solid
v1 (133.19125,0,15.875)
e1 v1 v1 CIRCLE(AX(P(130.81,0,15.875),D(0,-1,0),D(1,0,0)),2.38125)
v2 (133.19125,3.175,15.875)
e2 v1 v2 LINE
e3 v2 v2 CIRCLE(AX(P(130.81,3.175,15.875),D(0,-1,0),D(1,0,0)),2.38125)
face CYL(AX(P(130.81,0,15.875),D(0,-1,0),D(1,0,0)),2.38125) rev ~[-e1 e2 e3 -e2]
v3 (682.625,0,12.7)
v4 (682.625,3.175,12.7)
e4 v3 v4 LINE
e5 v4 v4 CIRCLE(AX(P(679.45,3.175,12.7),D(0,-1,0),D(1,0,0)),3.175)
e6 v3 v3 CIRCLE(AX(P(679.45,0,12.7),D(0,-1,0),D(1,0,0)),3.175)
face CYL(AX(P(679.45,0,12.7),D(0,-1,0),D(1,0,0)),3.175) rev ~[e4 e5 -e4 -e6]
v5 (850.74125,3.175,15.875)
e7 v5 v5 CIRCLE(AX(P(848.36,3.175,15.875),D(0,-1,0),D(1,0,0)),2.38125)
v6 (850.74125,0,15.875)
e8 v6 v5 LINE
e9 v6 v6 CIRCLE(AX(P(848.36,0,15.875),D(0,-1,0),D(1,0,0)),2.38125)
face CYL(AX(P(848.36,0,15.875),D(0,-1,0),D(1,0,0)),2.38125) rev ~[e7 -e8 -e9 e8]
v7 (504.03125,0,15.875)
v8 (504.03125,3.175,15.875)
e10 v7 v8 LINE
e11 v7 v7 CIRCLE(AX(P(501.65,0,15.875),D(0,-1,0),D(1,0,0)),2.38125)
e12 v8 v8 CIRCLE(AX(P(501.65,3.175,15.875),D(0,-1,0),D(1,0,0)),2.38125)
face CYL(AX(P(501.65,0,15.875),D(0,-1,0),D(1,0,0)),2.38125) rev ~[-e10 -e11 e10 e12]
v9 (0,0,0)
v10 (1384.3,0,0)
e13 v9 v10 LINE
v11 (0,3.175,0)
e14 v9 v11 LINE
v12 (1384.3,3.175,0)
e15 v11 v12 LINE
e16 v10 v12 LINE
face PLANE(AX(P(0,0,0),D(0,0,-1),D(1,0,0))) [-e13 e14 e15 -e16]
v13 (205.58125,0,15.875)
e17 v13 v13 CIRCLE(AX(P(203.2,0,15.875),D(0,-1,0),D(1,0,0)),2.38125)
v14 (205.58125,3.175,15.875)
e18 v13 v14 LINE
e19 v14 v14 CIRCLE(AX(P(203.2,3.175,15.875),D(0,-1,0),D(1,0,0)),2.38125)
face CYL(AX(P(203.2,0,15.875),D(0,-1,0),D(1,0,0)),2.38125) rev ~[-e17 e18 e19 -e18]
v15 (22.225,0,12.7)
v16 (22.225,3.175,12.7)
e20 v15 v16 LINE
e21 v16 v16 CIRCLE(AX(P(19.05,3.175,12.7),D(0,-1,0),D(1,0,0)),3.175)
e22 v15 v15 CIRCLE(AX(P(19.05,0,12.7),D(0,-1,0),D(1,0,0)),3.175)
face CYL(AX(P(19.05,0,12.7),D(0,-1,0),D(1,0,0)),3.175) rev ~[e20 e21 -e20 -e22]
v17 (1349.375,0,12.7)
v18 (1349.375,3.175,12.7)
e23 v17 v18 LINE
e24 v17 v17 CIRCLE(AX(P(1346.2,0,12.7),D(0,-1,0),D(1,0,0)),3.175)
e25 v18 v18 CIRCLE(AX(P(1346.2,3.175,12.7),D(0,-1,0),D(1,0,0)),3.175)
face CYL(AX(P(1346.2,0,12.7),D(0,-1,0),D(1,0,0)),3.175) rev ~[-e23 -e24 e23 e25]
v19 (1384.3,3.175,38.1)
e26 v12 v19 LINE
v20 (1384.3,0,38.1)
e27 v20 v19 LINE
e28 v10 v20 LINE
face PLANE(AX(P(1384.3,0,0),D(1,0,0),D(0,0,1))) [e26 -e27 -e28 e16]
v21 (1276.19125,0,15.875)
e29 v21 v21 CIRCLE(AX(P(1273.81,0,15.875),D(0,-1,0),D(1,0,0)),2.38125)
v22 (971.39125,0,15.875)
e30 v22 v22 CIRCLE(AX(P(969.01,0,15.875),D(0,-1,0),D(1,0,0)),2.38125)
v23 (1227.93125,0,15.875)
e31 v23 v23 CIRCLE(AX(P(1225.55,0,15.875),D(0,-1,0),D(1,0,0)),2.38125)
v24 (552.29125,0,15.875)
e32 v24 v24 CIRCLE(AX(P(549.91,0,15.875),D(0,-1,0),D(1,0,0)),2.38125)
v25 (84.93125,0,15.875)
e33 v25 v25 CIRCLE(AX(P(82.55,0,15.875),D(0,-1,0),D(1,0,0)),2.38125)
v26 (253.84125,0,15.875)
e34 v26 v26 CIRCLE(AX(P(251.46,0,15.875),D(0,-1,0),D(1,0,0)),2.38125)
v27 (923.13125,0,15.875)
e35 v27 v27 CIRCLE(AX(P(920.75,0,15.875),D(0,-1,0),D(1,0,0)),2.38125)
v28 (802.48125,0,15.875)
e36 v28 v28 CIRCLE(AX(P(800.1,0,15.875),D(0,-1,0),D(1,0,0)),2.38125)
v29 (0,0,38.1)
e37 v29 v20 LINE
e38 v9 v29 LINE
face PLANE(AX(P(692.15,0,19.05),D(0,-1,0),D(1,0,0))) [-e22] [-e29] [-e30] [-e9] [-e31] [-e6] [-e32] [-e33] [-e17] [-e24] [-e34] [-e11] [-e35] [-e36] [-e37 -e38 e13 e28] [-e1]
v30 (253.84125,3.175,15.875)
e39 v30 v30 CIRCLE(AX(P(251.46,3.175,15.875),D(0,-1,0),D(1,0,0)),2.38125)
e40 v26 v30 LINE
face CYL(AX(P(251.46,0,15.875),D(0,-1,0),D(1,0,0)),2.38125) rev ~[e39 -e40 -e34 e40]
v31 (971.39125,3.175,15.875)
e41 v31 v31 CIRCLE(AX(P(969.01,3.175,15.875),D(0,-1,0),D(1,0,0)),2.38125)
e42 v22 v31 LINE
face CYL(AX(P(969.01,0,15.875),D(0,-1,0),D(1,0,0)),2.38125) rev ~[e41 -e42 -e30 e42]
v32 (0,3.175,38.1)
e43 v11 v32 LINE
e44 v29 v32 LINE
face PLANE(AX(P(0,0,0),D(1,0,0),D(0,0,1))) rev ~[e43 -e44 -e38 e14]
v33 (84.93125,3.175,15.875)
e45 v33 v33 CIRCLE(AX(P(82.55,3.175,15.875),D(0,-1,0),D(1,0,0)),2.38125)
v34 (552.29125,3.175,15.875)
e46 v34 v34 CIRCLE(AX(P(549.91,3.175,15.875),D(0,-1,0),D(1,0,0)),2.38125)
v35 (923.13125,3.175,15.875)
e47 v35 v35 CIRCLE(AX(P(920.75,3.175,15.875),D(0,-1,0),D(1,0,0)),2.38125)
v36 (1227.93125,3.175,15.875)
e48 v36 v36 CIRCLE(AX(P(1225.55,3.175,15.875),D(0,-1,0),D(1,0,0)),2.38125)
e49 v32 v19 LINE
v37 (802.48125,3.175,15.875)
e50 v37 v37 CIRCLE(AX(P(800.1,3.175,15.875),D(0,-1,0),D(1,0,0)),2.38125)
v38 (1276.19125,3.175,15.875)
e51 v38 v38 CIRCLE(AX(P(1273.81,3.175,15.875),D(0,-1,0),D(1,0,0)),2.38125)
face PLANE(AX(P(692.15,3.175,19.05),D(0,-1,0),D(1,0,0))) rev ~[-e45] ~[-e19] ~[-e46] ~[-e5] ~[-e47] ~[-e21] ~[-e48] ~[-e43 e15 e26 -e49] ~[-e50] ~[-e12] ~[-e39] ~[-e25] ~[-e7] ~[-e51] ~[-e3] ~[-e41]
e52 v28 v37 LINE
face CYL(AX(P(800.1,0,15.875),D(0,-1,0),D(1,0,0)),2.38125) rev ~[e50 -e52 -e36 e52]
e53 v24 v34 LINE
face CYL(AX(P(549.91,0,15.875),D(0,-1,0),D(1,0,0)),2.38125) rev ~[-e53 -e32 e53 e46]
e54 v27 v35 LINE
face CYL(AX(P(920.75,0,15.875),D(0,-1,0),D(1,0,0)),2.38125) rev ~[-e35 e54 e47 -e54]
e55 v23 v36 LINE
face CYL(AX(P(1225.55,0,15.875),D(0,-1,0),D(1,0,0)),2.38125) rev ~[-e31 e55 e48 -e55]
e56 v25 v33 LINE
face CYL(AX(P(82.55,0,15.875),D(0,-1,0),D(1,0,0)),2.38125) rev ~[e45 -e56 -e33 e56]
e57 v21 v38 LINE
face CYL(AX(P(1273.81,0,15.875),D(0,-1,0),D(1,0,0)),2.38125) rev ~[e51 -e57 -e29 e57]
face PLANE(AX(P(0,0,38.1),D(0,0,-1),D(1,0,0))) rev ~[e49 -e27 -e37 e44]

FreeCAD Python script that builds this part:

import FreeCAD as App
import Part
import Sketcher
from FreeCAD import Vector
Q = App.Units.Quantity


def add_polygon(sketch, points):
    """Adds a closed chain of lines whose ends are joined by coincident constraints."""
    first, n = sketch.GeometryCount, len(points)
    for a, b in zip(points, points[1:] + points[:1]):
        sketch.addGeometry(Part.LineSegment(App.Vector(*a, 0), App.Vector(*b, 0)), False)
    for i in range(n):
        sketch.addConstraint(Sketcher.Constraint("Coincident", first + i, 2, first + (i + 1) % n, 1))

doc = App.newDocument("Part")
params = doc.addObject("Spreadsheet::Sheet", "Params")
for row, (alias, value) in enumerate([
    ("sketch1_width", "54.5 in"),
    ("sketch1_height", "1.5 in"),
    ("pad1_length", "0.125 in"),
    ("sketch2_diameter", "0.25 in"),
    ("sketch3_diameter", "0.1875 in"),
], start=1):
    params.set(f"A{row}", alias)
    params.set(f"B{row}", "=" + value)
    params.setAlias(f"B{row}", alias)

body = doc.addObject("PartDesign::Body", "Body")

# Sketch on XZ plane
sketch1 = doc.addObject("Sketcher::SketchObject", "Sketch")
body.addObject(sketch1)
sketch1.AttachmentSupport = (doc.XZ_Plane, [""])
sketch1.MapMode = "FlatFace"
add_polygon(sketch1, [(0, 38), (0, 0), (1384, 0), (1384, 38)])  # lines 0-3
sketch1.addConstraint(Sketcher.Constraint("Vertical", 0))
sketch1.addConstraint(Sketcher.Constraint("Horizontal", 1))
sketch1.addConstraint(Sketcher.Constraint("Vertical", 2))
sketch1.addConstraint(Sketcher.Constraint("Horizontal", 3))
sketch1.addConstraint(Sketcher.Constraint("Coincident", 0, 2, -1, 1))
sketch1.addConstraint(Sketcher.Constraint("DistanceX", 1, 1, 1, 2, Q("54.5 in")))
sketch1.addConstraint(Sketcher.Constraint("DistanceY", 0, 2, 0, 1, Q("1.5 in")))
sketch1.setExpression("Constraints[9]", "Params.sketch1_width")
sketch1.setExpression("Constraints[10]", "Params.sketch1_height")
pad1 = doc.addObject("PartDesign::Pad", "Pad")
body.addObject(pad1)
pad1.Profile = sketch1
pad1.setExpression("Length", "Params.pad1_length")
pad1.Reversed = True

# Sketch on XZ plane
sketch2 = doc.addObject("Sketcher::SketchObject", "Sketch001")
body.addObject(sketch2)
sketch2.AttachmentSupport = (doc.XZ_Plane, [""])
sketch2.MapMode = "FlatFace"
sketch2.addGeometry(Part.Circle(Vector(1346.2, 12.7, 0), Vector(0, 0, 1), 3.2), False)
sketch2.addGeometry(Part.Circle(Vector(679.5, 12.7, 0), Vector(0, 0, 1), 3.2), False)
sketch2.addGeometry(Part.Circle(Vector(19.1, 12.7, 0), Vector(0, 0, 1), 3.2), False)
sketch2.addConstraint(Sketcher.Constraint("Equal", 0, 1))
sketch2.addConstraint(Sketcher.Constraint("Equal", 1, 2))
sketch2.addConstraint(Sketcher.Constraint("Horizontal", 0, 3, 1, 3))
sketch2.addConstraint(Sketcher.Constraint("Horizontal", 1, 3, 2, 3))
sketch2.addConstraint(Sketcher.Constraint("Diameter", 0, Q("0.25 in")))
sketch2.addConstraint(Sketcher.Constraint("DistanceX", -1, 1, 0, 3, Q("53 in")))
sketch2.addConstraint(Sketcher.Constraint("DistanceX", 2, 3, 1, 3, Q("26 in")))
sketch2.addConstraint(Sketcher.Constraint("DistanceY", -1, 1, 0, 3, Q("0.5 in")))
sketch2.addConstraint(Sketcher.Constraint("DistanceX", -1, 1, 1, 3, Q("26.75 in")))
sketch2.setExpression("Constraints[4]", "Params.sketch2_diameter")
pocket1 = doc.addObject("PartDesign::Pocket", "Pocket")
body.addObject(pocket1)
pocket1.Profile = sketch2
pocket1.Type = "ThroughAll"

# Sketch on XZ plane
sketch3 = doc.addObject("Sketcher::SketchObject", "Sketch002")
body.addObject(sketch3)
sketch3.AttachmentSupport = (doc.XZ_Plane, [""])
sketch3.MapMode = "FlatFace"
sketch3.addGeometry(Part.Circle(Vector(82.5, 15.9, 0), Vector(0, 0, 1), 2.4), False)
sketch3.addGeometry(Part.Circle(Vector(130.8, 15.9, 0), Vector(0, 0, 1), 2.4), False)
sketch3.addGeometry(Part.Circle(Vector(203.2, 15.9, 0), Vector(0, 0, 1), 2.4), False)
sketch3.addGeometry(Part.Circle(Vector(251.5, 15.9, 0), Vector(0, 0, 1), 2.4), False)
sketch3.addGeometry(Part.Circle(Vector(501.6, 15.9, 0), Vector(0, 0, 1), 2.4), False)
sketch3.addGeometry(Part.Circle(Vector(549.9, 15.9, 0), Vector(0, 0, 1), 2.4), False)
sketch3.addGeometry(Part.Circle(Vector(920.8, 15.9, 0), Vector(0, 0, 1), 2.4), False)
sketch3.addGeometry(Part.Circle(Vector(969, 15.9, 0), Vector(0, 0, 1), 2.4), False)
sketch3.addGeometry(Part.Circle(Vector(1225.5, 15.9, 0), Vector(0, 0, 1), 2.4), False)
sketch3.addGeometry(Part.Circle(Vector(1273.8, 15.9, 0), Vector(0, 0, 1), 2.4), False)
sketch3.addGeometry(Part.Circle(Vector(800.1, 15.9, 0), Vector(0, 0, 1), 2.4), False)
sketch3.addGeometry(Part.Circle(Vector(848.4, 15.9, 0), Vector(0, 0, 1), 2.4), False)
sketch3.addConstraint(Sketcher.Constraint("Equal", 0, 1))
sketch3.addConstraint(Sketcher.Constraint("Equal", 1, 2))
sketch3.addConstraint(Sketcher.Constraint("Equal", 2, 3))
sketch3.addConstraint(Sketcher.Constraint("Equal", 3, 4))
sketch3.addConstraint(Sketcher.Constraint("Equal", 4, 5))
sketch3.addConstraint(Sketcher.Constraint("Equal", 5, 6))
sketch3.addConstraint(Sketcher.Constraint("Equal", 6, 7))
sketch3.addConstraint(Sketcher.Constraint("Equal", 7, 8))
sketch3.addConstraint(Sketcher.Constraint("Equal", 8, 9))
sketch3.addConstraint(Sketcher.Constraint("Equal", 9, 10))
sketch3.addConstraint(Sketcher.Constraint("Equal", 10, 11))
sketch3.addConstraint(Sketcher.Constraint("Horizontal", 0, 3, 1, 3))
sketch3.addConstraint(Sketcher.Constraint("Horizontal", 1, 3, 2, 3))
sketch3.addConstraint(Sketcher.Constraint("Horizontal", 2, 3, 3, 3))
sketch3.addConstraint(Sketcher.Constraint("Horizontal", 3, 3, 4, 3))
sketch3.addConstraint(Sketcher.Constraint("Horizontal", 4, 3, 5, 3))
sketch3.addConstraint(Sketcher.Constraint("Horizontal", 5, 3, 6, 3))
sketch3.addConstraint(Sketcher.Constraint("Horizontal", 6, 3, 7, 3))
sketch3.addConstraint(Sketcher.Constraint("Horizontal", 7, 3, 8, 3))
sketch3.addConstraint(Sketcher.Constraint("Horizontal", 8, 3, 9, 3))
sketch3.addConstraint(Sketcher.Constraint("Horizontal", 9, 3, 10, 3))
sketch3.addConstraint(Sketcher.Constraint("Horizontal", 10, 3, 11, 3))
sketch3.addConstraint(Sketcher.Constraint("Diameter", 0, Q("0.1875 in")))
sketch3.addConstraint(Sketcher.Constraint("DistanceX", -1, 1, 2, 3, Q("8 in")))
sketch3.addConstraint(Sketcher.Constraint("DistanceX", 6, 3, 8, 3, Q("12 in")))
sketch3.addConstraint(Sketcher.Constraint("DistanceX", 7, 3, 9, 3, Q("12 in")))
sketch3.addConstraint(Sketcher.Constraint("DistanceX", -1, 1, 3, 3, Q("9.9 in")))
sketch3.addConstraint(Sketcher.Constraint("DistanceX", -1, 1, 10, 3, Q("31.5 in")))
sketch3.addConstraint(Sketcher.Constraint("DistanceX", -1, 1, 11, 3, Q("33.4 in")))
sketch3.addConstraint(Sketcher.Constraint("DistanceX", 0, 3, 1, 3, Q("1.9 in")))
sketch3.addConstraint(Sketcher.Constraint("DistanceX", 1, 3, 4, 3, Q("14.6 in")))
sketch3.addConstraint(Sketcher.Constraint("DistanceX", 4, 3, 5, 3, Q("1.9 in")))
sketch3.addConstraint(Sketcher.Constraint("DistanceX", 5, 3, 6, 3, Q("14.6 in")))
sketch3.addConstraint(Sketcher.Constraint("DistanceX", 6, 3, 7, 3, Q("1.9 in")))
sketch3.addConstraint(Sketcher.Constraint("DistanceX", -1, 1, 0, 3, Q("3.25 in")))
sketch3.addConstraint(Sketcher.Constraint("DistanceY", -1, 1, 0, 3, Q("0.625 in")))
sketch3.setExpression("Constraints[22]", "Params.sketch3_diameter")
pocket2 = doc.addObject("PartDesign::Pocket", "Pocket001")
body.addObject(pocket2)
pocket2.Profile = sketch3
pocket2.Type = "ThroughAll"

doc.recompute()
